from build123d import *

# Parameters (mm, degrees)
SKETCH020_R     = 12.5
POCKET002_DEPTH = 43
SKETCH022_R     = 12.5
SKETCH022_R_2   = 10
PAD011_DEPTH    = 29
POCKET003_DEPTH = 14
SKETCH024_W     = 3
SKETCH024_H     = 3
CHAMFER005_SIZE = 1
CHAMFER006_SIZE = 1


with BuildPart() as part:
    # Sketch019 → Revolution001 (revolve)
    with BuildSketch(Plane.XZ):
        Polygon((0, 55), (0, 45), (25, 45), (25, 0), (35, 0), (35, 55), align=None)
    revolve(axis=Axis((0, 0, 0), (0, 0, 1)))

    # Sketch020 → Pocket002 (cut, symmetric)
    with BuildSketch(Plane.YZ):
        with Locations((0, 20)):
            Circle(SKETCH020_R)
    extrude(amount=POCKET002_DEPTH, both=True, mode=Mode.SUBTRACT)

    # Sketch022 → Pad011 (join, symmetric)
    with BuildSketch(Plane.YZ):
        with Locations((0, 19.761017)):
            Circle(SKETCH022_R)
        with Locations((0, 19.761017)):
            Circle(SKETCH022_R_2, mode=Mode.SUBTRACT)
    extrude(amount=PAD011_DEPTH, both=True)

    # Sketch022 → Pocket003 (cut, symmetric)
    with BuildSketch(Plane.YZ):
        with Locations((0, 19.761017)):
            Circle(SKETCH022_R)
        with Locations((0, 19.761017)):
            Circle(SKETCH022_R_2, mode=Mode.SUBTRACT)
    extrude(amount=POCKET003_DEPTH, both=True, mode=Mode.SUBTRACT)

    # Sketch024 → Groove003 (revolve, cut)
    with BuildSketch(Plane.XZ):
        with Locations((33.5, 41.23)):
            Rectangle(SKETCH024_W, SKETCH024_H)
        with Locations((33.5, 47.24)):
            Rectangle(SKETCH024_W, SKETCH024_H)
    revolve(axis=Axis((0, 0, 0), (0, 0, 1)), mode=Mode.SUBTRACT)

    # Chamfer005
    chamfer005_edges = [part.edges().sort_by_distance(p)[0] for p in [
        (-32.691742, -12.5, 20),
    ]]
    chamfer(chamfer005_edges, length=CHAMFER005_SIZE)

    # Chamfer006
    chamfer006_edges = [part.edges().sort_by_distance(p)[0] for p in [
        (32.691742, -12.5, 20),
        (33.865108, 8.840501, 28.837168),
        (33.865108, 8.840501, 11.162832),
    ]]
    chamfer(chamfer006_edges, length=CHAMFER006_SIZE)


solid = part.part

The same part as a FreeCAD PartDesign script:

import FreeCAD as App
import Part
import Sketcher
from FreeCAD import Vector


def edges_at(feature, points):
    """Names of the edges that pass closest to the given points."""
    edges = feature.Shape.Edges
    near = lambda p: min(range(len(edges)), key=lambda i: edges[i].distToShape(Part.Vertex(*p))[0])
    return sorted({f"Edge{near(p) + 1}" for p in points})


def add_polygon(sketch, points):
    """Adds a closed chain of lines whose ends are joined by coincident constraints."""
    first, n = sketch.GeometryCount, len(points)
    for a, b in zip(points, points[1:] + points[:1]):
        sketch.addGeometry(Part.LineSegment(App.Vector(*a, 0), App.Vector(*b, 0)), False)
    for i in range(n):
        sketch.addConstraint(Sketcher.Constraint("Coincident", first + i, 2, first + (i + 1) % n, 1))

doc = App.newDocument("Part")
params = doc.addObject("Spreadsheet::Sheet", "Params")
for row, (alias, value) in enumerate([
    ("sketch1_width", "25 mm"),
    ("sketch1_width2", "10 mm"),
    ("sketch1_height", "45 mm"),
    ("revolution_angle", "360 deg"),
    ("sketch2_diameter", "25 mm"),
    ("pocket1_length", "86 mm"),
    ("sketch3_diameter", "25 mm"),
    ("sketch3_diameter2", "20 mm"),
    ("pad1_length", "58 mm"),
    ("sketch4_diameter", "25 mm"),
    ("sketch4_diameter2", "20 mm"),
    ("pocket2_length", "28 mm"),
    ("sketch5_width", "3 mm"),
    ("groove_angle", "360 deg"),
    ("chamfer_size", "1 mm"),
    ("chamfer2_size", "1 mm"),
], start=1):
    params.set(f"A{row}", alias)
    params.set(f"B{row}", "=" + value)
    params.setAlias(f"B{row}", alias)

body = doc.addObject("PartDesign::Body", "Body")

# Sketch on XZ plane
sketch1 = doc.addObject("Sketcher::SketchObject", "Sketch")
body.addObject(sketch1)
sketch1.AttachmentSupport = (doc.XZ_Plane, [""])
sketch1.MapMode = "FlatFace"
add_polygon(sketch1, [(0, 55), (0, 45), (25, 45), (25, 0), (35, 0), (35, 55)])  # lines 0-5
sketch1.addConstraint(Sketcher.Constraint("Vertical", 0))
sketch1.addConstraint(Sketcher.Constraint("Horizontal", 1))
sketch1.addConstraint(Sketcher.Constraint("Vertical", 2))
sketch1.addConstraint(Sketcher.Constraint("Horizontal", 3))
sketch1.addConstraint(Sketcher.Constraint("Vertical", 4))
sketch1.addConstraint(Sketcher.Constraint("Horizontal", 5))
sketch1.addConstraint(Sketcher.Constraint("PointOnObject", 0, 2, -2))
sketch1.addConstraint(Sketcher.Constraint("PointOnObject", 2, 2, -1))
sketch1.addConstraint(Sketcher.Constraint("Equal", 3, 0))
sketch1.addConstraint(Sketcher.Constraint("DistanceX", 1, 1, 1, 2, 25.0))
sketch1.addConstraint(Sketcher.Constraint("DistanceX", 3, 1, 3, 2, 10.0))
sketch1.addConstraint(Sketcher.Constraint("DistanceY", 2, 2, 2, 1, 45.0))
sketch1.setExpression("Constraints[15]", "Params.sketch1_width")
sketch1.setExpression("Constraints[16]", "Params.sketch1_width2")
sketch1.setExpression("Constraints[17]", "Params.sketch1_height")
revolution = doc.addObject("PartDesign::Revolution", "Revolution")
body.addObject(revolution)
revolution.Profile = sketch1
revolution.ReferenceAxis = (sketch1, ["V_Axis"])
revolution.setExpression("Angle", "Params.revolution_angle")

# Sketch on YZ plane
sketch2 = doc.addObject("Sketcher::SketchObject", "Sketch001")
body.addObject(sketch2)
sketch2.AttachmentSupport = (doc.YZ_Plane, [""])
sketch2.MapMode = "FlatFace"
sketch2.addGeometry(Part.Circle(Vector(0, 20, 0), Vector(0, 0, 1), 12), False)
sketch2.addConstraint(Sketcher.Constraint("PointOnObject", 0, 3, -2))
sketch2.addConstraint(Sketcher.Constraint("Diameter", 0, 25.0))
sketch2.addConstraint(Sketcher.Constraint("DistanceY", -1, 1, 0, 3, 20.0))
sketch2.setExpression("Constraints[1]", "Params.sketch2_diameter")
pocket1 = doc.addObject("PartDesign::Pocket", "Pocket")
body.addObject(pocket1)
pocket1.Profile = sketch2
pocket1.setExpression("Length", "Params.pocket1_length")
pocket1.Midplane = True

# Sketch on YZ plane
sketch3 = doc.addObject("Sketcher::SketchObject", "Sketch002")
body.addObject(sketch3)
sketch3.AttachmentSupport = (doc.YZ_Plane, [""])
sketch3.MapMode = "FlatFace"
sketch3.addGeometry(Part.Circle(Vector(0, 20, 0), Vector(0, 0, 1), 12), False)
sketch3.addGeometry(Part.Circle(Vector(0, 20, 0), Vector(0, 0, 1), 10), False)
sketch3.addConstraint(Sketcher.Constraint("Coincident", 1, 3, 0, 3))
sketch3.addConstraint(Sketcher.Constraint("PointOnObject", 0, 3, -2))
sketch3.addConstraint(Sketcher.Constraint("Diameter", 0, 25.0))
sketch3.addConstraint(Sketcher.Constraint("Diameter", 1, 20.0))
sketch3.addConstraint(Sketcher.Constraint("DistanceY", -1, 1, 0, 3, 19.761017))
sketch3.setExpression("Constraints[2]", "Params.sketch3_diameter")
sketch3.setExpression("Constraints[3]", "Params.sketch3_diameter2")
pad1 = doc.addObject("PartDesign::Pad", "Pad")
body.addObject(pad1)
pad1.Profile = sketch3
pad1.setExpression("Length", "Params.pad1_length")
pad1.Midplane = True

# Sketch on YZ plane
sketch4 = doc.addObject("Sketcher::SketchObject", "Sketch003")
body.addObject(sketch4)
sketch4.AttachmentSupport = (doc.YZ_Plane, [""])
sketch4.MapMode = "FlatFace"
sketch4.addGeometry(Part.Circle(Vector(0, 20, 0), Vector(0, 0, 1), 12), False)
sketch4.addGeometry(Part.Circle(Vector(0, 20, 0), Vector(0, 0, 1), 10), False)
sketch4.addConstraint(Sketcher.Constraint("Coincident", 1, 3, 0, 3))
sketch4.addConstraint(Sketcher.Constraint("PointOnObject", 0, 3, -2))
sketch4.addConstraint(Sketcher.Constraint("Diameter", 0, 25.0))
sketch4.addConstraint(Sketcher.Constraint("Diameter", 1, 20.0))
sketch4.addConstraint(Sketcher.Constraint("DistanceY", -1, 1, 0, 3, 19.761017))
sketch4.setExpression("Constraints[2]", "Params.sketch4_diameter")
sketch4.setExpression("Constraints[3]", "Params.sketch4_diameter2")
pocket2 = doc.addObject("PartDesign::Pocket", "Pocket001")
body.addObject(pocket2)
pocket2.Profile = sketch4
pocket2.setExpression("Length", "Params.pocket2_length")
pocket2.Midplane = True

# Sketch on XZ plane
sketch5 = doc.addObject("Sketcher::SketchObject", "Sketch004")
body.addObject(sketch5)
sketch5.AttachmentSupport = (doc.XZ_Plane, [""])
sketch5.MapMode = "FlatFace"
add_polygon(sketch5, [(32, 42.7), (32, 39.7), (35, 39.7), (35, 42.7)])  # lines 0-3
add_polygon(sketch5, [(32, 48.7), (32, 45.7), (35, 45.7), (35, 48.7)])  # lines 4-7
sketch5.addConstraint(Sketcher.Constraint("Vertical", 0))
sketch5.addConstraint(Sketcher.Constraint("Horizontal", 1))
sketch5.addConstraint(Sketcher.Constraint("Vertical", 2))
sketch5.addConstraint(Sketcher.Constraint("Horizontal", 3))
sketch5.addConstraint(Sketcher.Constraint("Vertical", 4))
sketch5.addConstraint(Sketcher.Constraint("Horizontal", 5))
sketch5.addConstraint(Sketcher.Constraint("Vertical", 6))
sketch5.addConstraint(Sketcher.Constraint("Horizontal", 7))
sketch5.addConstraint(Sketcher.Constraint("Vertical", 3, 2, 4, 2))
sketch5.addConstraint(Sketcher.Constraint("Vertical", 2, 2, 5, 2))
sketch5.addConstraint(Sketcher.Constraint("Equal", 7, 0))
sketch5.addConstraint(Sketcher.Constraint("Equal", 2, 4))
sketch5.addConstraint(Sketcher.Constraint("DistanceX", 1, 1, 1, 2, 3.0))
sketch5.addConstraint(Sketcher.Constraint("DistanceX", -1, 1, 0, 2, 32.0))
sketch5.addConstraint(Sketcher.Constraint("DistanceY", -1, 1, 0, 2, 39.73))
sketch5.addConstraint(Sketcher.Constraint("DistanceY", -1, 1, 4, 2, 45.74))
sketch5.setExpression("Constraints[20]", "Params.sketch5_width")
groove = doc.addObject("PartDesign::Groove", "Groove")
body.addObject(groove)
groove.Profile = sketch5
groove.ReferenceAxis = (sketch5, ["V_Axis"])
groove.setExpression("Angle", "Params.groove_angle")
doc.recompute()

chamfer = doc.addObject("PartDesign::Chamfer", "Chamfer")
body.addObject(chamfer)
chamfer.Base = (groove, edges_at(groove, [(-32.692, -12.5, 20)]))
chamfer.setExpression("Size", "Params.chamfer_size")
doc.recompute()

chamfer2 = doc.addObject("PartDesign::Chamfer", "Chamfer001")
body.addObject(chamfer2)
chamfer2.Base = (chamfer, edges_at(chamfer, [(32.692, -12.5, 20), (33.865, 8.841, 28.837), (33.865, 8.841, 11.163)]))
chamfer2.setExpression("Size", "Params.chamfer2_size")

doc.recompute()
